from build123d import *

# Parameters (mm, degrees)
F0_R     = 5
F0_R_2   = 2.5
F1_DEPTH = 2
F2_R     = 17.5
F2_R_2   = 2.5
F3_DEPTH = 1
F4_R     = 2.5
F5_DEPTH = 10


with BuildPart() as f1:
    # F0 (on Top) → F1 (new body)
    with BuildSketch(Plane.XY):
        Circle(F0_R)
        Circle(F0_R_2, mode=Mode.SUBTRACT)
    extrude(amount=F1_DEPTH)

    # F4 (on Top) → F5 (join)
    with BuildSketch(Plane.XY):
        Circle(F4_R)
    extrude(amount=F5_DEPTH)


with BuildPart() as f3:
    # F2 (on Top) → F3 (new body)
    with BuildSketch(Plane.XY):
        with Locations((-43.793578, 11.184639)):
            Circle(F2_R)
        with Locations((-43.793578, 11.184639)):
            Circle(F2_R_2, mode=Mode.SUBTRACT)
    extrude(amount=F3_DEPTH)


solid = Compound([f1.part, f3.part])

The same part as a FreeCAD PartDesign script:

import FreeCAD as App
import Part
import Sketcher

V = App.Vector
Q = App.Units.Quantity

doc = App.newDocument("Part")
body = doc.addObject("PartDesign::Body", "Body")

# Sketch on XY plane
sketch1 = doc.addObject("Sketcher::SketchObject", "Sketch")
body.addObject(sketch1)
sketch1.AttachmentSupport = (doc.XY_Plane, [""])
sketch1.MapMode = "FlatFace"
sketch1.addGeometry([
    Part.Circle(V(0, 0, 0), V(0, 0, 1), 5),
    Part.Circle(V(0, 0, 0), V(0, 0, 1), 2.5),
], False)
sketch1.addConstraint([
    Sketcher.Constraint("Coincident", 0, 3, -1, 1),
    Sketcher.Constraint("Coincident", 1, 3, -1, 1),
    Sketcher.Constraint("Diameter", 0, Q("10 mm")),
    Sketcher.Constraint("Diameter", 1, Q("5 mm")),
])
pad1 = doc.addObject("PartDesign::Pad", "Pad")
body.addObject(pad1)
pad1.Profile = sketch1
pad1.Length = 2

# Sketch on XY plane
sketch2 = doc.addObject("Sketcher::SketchObject", "Sketch001")
body.addObject(sketch2)
sketch2.AttachmentSupport = (doc.XY_Plane, [""])
sketch2.MapMode = "FlatFace"
sketch2.addGeometry(Part.Circle(V(0, 0, 0), V(0, 0, 1), 2.5), False)
sketch2.addConstraint([
    Sketcher.Constraint("Coincident", 0, 3, -1, 1),
    Sketcher.Constraint("Diameter", 0, Q("5 mm")),
])
pad2 = doc.addObject("PartDesign::Pad", "Pad001")
body.addObject(pad2)
pad2.Profile = sketch2
pad2.Length = 10
body2 = doc.addObject("PartDesign::Body", "Body001")

# Sketch on XY plane
sketch3 = doc.addObject("Sketcher::SketchObject", "Sketch002")
body2.addObject(sketch3)
sketch3.AttachmentSupport = (doc.getObject("XY_Plane001"), [""])
sketch3.MapMode = "FlatFace"
sketch3.addGeometry([
    Part.Circle(V(-43.8, 11.2, 0), V(0, 0, 1), 17.5),
    Part.Circle(V(-43.8, 11.2, 0), V(0, 0, 1), 2.5),
], False)
sketch3.addConstraint([
    Sketcher.Constraint("Coincident", 1, 3, 0, 3),
    Sketcher.Constraint("Diameter", 0, Q("35 mm")),
    Sketcher.Constraint("Diameter", 1, Q("5 mm")),
    Sketcher.Constraint("DistanceY", -1, 1, 0, 3, Q("11.184639 mm")),
    Sketcher.Constraint("DistanceX", 0, 3, -1, 1, Q("43.793578 mm")),
])
pad3 = doc.addObject("PartDesign::Pad", "Pad002")
body2.addObject(pad3)
pad3.Profile = sketch3
pad3.Length = 1

doc.recompute()
